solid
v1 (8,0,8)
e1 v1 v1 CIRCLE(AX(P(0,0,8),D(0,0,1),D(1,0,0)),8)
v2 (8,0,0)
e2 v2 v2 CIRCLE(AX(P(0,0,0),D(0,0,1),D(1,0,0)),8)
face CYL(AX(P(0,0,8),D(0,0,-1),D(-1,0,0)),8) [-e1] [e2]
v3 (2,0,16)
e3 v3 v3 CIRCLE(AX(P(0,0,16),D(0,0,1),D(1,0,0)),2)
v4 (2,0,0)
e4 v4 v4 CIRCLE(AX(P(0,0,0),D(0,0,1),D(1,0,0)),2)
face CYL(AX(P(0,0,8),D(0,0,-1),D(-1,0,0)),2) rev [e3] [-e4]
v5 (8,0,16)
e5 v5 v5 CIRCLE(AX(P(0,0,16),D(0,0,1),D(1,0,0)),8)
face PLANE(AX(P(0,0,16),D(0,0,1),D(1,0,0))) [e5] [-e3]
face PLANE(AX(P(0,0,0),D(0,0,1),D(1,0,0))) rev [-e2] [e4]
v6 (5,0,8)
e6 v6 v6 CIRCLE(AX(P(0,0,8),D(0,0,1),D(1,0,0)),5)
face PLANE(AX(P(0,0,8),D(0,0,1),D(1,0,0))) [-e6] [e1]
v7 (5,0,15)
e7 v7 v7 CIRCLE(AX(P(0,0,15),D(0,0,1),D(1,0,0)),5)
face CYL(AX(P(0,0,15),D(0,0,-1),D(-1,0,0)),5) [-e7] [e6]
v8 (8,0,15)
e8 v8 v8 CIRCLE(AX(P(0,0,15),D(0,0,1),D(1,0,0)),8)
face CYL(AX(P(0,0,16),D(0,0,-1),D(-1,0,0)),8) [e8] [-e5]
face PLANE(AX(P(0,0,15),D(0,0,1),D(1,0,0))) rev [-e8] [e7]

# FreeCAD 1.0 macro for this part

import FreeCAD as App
import Part
import Sketcher

V = App.Vector
Q = App.Units.Quantity

doc = App.newDocument("Part")
body = doc.addObject("PartDesign::Body", "Body")

sketch1 = body.newObject("Sketcher::SketchObject", "Sketch")
sketch1.AttachmentSupport = (doc.getObject("XY_Plane"), [""])
sketch1.MapMode = "FlatFace"
sketch1.addGeometry([
    Part.Circle(V(0, 0, 0), V(0, 0, 1), 8),
    Part.Circle(V(0, 0, 0), V(0, 0, 1), 2),
], False)
sketch1.addConstraint([
    Sketcher.Constraint("Coincident", 0, 3, -1, 1),
    Sketcher.Constraint("Coincident", 1, 3, -1, 1),
    Sketcher.Constraint("Diameter", 0, Q("16 mm")),
    Sketcher.Constraint("Diameter", 1, Q("4 mm")),
])
pad1 = body.newObject("PartDesign::Pad", "Pad")
pad1.Profile = sketch1
pad1.Length = 8

sketch2 = body.newObject("Sketcher::SketchObject", "Sketch001")
sketch2.AttachmentSupport = (doc.getObject("XY_Plane"), [""])
sketch2.MapMode = "FlatFace"
sketch2.AttachmentOffset = App.Placement(V(0, 0, 8), App.Rotation())
sketch2.addGeometry([
    Part.Circle(V(0, 0, 0), V(0, 0, 1), 5),
    Part.Circle(V(0, 0, 0), V(0, 0, 1), 2),
], False)
sketch2.addConstraint([
    Sketcher.Constraint("Coincident", 0, 3, -1, 1),
    Sketcher.Constraint("Coincident", 1, 3, -1, 1),
    Sketcher.Constraint("Diameter", 0, Q("10 mm")),
    Sketcher.Constraint("Diameter", 1, Q("4 mm")),
])
pad2 = body.newObject("PartDesign::Pad", "Pad001")
pad2.Profile = sketch2
pad2.Length = 7

sketch3 = body.newObject("Sketcher::SketchObject", "Sketch002")
sketch3.AttachmentSupport = (doc.getObject("XY_Plane"), [""])
sketch3.MapMode = "FlatFace"
sketch3.AttachmentOffset = App.Placement(V(0, 0, 15), App.Rotation())
sketch3.addGeometry([
    Part.Circle(V(0, 0, 0), V(0, 0, 1), 8),
    Part.Circle(V(0, 0, 0), V(0, 0, 1), 2),
], False)
sketch3.addConstraint([
    Sketcher.Constraint("Coincident", 0, 3, -1, 1),
    Sketcher.Constraint("Coincident", 1, 3, -1, 1),
    Sketcher.Constraint("Diameter", 0, Q("16 mm")),
    Sketcher.Constraint("Diameter", 1, Q("4 mm")),
])
pad3 = body.newObject("PartDesign::Pad", "Pad002")
pad3.Profile = sketch3
pad3.Length = 1

doc.recompute()
